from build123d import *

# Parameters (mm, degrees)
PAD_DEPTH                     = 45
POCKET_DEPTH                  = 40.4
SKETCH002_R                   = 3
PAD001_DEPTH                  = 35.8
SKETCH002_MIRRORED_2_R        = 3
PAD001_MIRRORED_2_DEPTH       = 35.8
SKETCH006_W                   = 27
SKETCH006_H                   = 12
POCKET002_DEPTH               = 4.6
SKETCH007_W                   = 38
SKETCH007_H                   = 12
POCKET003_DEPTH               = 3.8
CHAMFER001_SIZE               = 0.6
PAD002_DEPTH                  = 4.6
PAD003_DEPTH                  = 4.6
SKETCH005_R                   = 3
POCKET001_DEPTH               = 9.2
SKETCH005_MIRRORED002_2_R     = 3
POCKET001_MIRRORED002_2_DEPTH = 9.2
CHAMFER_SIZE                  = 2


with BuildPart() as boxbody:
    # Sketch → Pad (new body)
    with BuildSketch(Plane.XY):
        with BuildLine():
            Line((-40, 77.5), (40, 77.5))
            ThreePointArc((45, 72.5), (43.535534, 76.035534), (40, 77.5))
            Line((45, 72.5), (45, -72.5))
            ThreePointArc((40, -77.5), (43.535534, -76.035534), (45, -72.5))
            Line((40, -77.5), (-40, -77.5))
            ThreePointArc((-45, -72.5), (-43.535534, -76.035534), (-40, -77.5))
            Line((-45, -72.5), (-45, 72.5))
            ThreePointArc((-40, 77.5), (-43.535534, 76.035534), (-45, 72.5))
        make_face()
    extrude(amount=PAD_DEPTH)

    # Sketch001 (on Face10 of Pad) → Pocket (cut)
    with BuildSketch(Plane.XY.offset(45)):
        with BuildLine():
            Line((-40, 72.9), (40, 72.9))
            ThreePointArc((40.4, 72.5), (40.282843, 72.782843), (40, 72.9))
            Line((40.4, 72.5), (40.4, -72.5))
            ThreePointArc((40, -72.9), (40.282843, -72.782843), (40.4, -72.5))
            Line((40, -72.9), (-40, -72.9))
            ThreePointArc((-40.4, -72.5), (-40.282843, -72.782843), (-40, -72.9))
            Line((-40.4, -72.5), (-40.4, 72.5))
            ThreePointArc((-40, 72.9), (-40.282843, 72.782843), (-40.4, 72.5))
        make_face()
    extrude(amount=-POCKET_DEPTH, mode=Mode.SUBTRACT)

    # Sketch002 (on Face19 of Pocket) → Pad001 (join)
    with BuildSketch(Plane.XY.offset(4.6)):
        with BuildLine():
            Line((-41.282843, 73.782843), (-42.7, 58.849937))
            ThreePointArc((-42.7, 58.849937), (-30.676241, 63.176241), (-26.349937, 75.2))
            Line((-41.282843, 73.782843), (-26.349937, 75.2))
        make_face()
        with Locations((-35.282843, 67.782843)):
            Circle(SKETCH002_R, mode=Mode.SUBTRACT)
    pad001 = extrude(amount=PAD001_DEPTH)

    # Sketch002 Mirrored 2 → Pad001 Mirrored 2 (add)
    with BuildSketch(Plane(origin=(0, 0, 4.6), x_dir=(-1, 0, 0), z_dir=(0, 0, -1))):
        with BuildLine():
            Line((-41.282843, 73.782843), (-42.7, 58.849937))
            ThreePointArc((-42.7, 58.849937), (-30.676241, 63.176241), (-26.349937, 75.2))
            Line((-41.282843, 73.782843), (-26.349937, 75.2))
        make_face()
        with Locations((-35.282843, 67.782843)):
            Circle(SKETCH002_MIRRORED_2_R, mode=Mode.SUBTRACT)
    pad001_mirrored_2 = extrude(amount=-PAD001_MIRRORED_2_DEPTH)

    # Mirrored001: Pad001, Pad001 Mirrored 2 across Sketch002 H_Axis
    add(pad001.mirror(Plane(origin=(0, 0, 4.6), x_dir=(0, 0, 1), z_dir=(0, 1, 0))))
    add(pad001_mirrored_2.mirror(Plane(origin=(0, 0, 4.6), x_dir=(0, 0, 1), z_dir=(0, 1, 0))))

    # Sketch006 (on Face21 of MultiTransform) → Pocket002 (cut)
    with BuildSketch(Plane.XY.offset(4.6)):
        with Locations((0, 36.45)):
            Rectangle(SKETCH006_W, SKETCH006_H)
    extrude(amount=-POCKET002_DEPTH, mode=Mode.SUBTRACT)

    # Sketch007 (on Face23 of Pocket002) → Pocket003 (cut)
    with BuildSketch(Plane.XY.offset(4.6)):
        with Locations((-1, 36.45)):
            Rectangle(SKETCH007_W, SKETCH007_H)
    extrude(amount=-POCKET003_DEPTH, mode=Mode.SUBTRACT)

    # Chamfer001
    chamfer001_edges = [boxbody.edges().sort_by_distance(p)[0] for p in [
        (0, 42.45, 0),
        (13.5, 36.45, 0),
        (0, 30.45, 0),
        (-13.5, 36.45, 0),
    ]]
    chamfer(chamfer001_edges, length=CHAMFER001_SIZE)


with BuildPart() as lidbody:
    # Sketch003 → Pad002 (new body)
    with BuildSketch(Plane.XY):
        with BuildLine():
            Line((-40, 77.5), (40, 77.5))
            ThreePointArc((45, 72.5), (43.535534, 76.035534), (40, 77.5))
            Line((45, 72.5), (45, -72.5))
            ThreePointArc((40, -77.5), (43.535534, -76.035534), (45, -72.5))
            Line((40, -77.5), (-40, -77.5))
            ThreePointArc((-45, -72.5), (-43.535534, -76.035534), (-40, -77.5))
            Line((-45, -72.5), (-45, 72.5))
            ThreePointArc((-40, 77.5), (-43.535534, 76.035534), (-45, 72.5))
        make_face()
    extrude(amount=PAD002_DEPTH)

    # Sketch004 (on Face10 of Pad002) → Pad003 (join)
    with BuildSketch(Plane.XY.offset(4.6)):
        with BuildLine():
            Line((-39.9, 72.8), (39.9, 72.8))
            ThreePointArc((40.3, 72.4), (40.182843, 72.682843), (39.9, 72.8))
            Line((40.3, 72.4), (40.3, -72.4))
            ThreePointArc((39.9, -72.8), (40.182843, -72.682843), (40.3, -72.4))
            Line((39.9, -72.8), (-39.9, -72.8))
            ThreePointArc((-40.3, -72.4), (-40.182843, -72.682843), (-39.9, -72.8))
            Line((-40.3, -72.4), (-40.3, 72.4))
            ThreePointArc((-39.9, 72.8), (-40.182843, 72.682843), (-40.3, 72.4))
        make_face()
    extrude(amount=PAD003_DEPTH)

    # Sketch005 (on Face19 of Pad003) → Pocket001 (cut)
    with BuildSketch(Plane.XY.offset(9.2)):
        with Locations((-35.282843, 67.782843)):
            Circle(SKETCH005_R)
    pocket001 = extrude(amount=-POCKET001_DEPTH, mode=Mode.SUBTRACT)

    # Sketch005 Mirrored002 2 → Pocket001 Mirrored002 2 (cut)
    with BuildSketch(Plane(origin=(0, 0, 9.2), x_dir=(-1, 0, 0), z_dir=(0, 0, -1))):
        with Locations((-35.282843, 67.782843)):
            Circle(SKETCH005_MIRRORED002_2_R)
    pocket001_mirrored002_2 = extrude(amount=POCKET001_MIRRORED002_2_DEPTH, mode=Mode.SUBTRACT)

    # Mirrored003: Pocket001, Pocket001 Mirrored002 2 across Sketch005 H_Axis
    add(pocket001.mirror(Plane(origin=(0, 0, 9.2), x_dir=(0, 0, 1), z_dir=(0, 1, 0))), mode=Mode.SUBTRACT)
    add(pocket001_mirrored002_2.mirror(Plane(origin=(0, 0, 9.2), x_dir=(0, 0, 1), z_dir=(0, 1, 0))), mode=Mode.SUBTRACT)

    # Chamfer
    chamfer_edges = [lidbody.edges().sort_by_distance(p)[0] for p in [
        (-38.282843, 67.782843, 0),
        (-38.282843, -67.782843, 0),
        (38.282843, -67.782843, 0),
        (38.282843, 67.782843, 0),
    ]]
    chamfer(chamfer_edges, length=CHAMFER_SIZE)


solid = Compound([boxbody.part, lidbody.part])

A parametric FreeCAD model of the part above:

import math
import FreeCAD as App
import Part
import Sketcher


def edges_at(feature, points):
    """Names of the edges that pass closest to the given points."""
    edges = feature.Shape.Edges
    near = lambda p: min(range(len(edges)), key=lambda i: edges[i].distToShape(Part.Vertex(*p))[0])
    return sorted({f"Edge{near(p) + 1}" for p in points})


def add_polygon(sketch, points):
    """Adds a closed chain of lines whose ends are joined by coincident constraints."""
    first, n = sketch.GeometryCount, len(points)
    for a, b in zip(points, points[1:] + points[:1]):
        sketch.addGeometry(Part.LineSegment(App.Vector(*a, 0), App.Vector(*b, 0)), False)
    for i in range(n):
        sketch.addConstraint(Sketcher.Constraint("Coincident", first + i, 2, first + (i + 1) % n, 1))

doc = App.newDocument("Part")
body = doc.addObject("PartDesign::Body", "Body")

# Sketch on XY plane
sketch1 = body.newObject("Sketcher::SketchObject", "Sketch")
sketch1.AttachmentSupport = (doc.getObject("XY_Plane"), [""])
sketch1.MapMode = "FlatFace"
sketch1.addGeometry(Part.LineSegment(App.Vector(40, 77.5, 0), App.Vector(-40, 77.5, 0)), False)
sketch1.addGeometry(Part.ArcOfCircle(Part.Circle(App.Vector(-40, 72.5, 0), App.Vector(0, 0, 1), 5), math.radians(90), math.radians(180)), False)
sketch1.addGeometry(Part.LineSegment(App.Vector(-45, 72.5, 0), App.Vector(-45, -72.5, 0)), False)
sketch1.addGeometry(Part.ArcOfCircle(Part.Circle(App.Vector(-40, -72.5, 0), App.Vector(0, 0, 1), 5), math.radians(180), math.radians(270)), False)
sketch1.addGeometry(Part.LineSegment(App.Vector(-40, -77.5, 0), App.Vector(40, -77.5, 0)), False)
sketch1.addGeometry(Part.ArcOfCircle(Part.Circle(App.Vector(40, -72.5, 0), App.Vector(0, 0, 1), 5), math.radians(-90), math.radians(0)), False)
sketch1.addGeometry(Part.LineSegment(App.Vector(45, -72.5, 0), App.Vector(45, 72.5, 0)), False)
sketch1.addGeometry(Part.ArcOfCircle(Part.Circle(App.Vector(40, 72.5, 0), App.Vector(0, 0, 1), 5), math.radians(0), math.radians(90)), False)
sketch1.addConstraint(Sketcher.Constraint("Tangent", 0, 2, 1, 1))
sketch1.addConstraint(Sketcher.Constraint("Tangent", 1, 2, 2, 1))
sketch1.addConstraint(Sketcher.Constraint("Tangent", 2, 2, 3, 1))
sketch1.addConstraint(Sketcher.Constraint("Tangent", 3, 2, 4, 1))
sketch1.addConstraint(Sketcher.Constraint("Tangent", 4, 2, 5, 1))
sketch1.addConstraint(Sketcher.Constraint("Tangent", 5, 2, 6, 1))
sketch1.addConstraint(Sketcher.Constraint("Tangent", 6, 2, 7, 1))
sketch1.addConstraint(Sketcher.Constraint("Tangent", 7, 2, 0, 1))
sketch1.addConstraint(Sketcher.Constraint("Horizontal", 0))
sketch1.addConstraint(Sketcher.Constraint("Vertical", 2))
sketch1.addConstraint(Sketcher.Constraint("Horizontal", 4))
sketch1.addConstraint(Sketcher.Constraint("Vertical", 6))
sketch1.addConstraint(Sketcher.Constraint("Equal", 1, 3))
sketch1.addConstraint(Sketcher.Constraint("Equal", 3, 5))
sketch1.addConstraint(Sketcher.Constraint("Equal", 5, 7))
sketch1.addConstraint(Sketcher.Constraint("Symmetric", 1, 3, 5, 3, -1, 1))
sketch1.addConstraint(Sketcher.Constraint("Radius", 1, 5.0))
sketch1.addConstraint(Sketcher.Constraint("DistanceX", 0, 2, 0, 1, 80.0))
sketch1.addConstraint(Sketcher.Constraint("DistanceY", 2, 2, 2, 1, 145.0))
pad1 = body.newObject("PartDesign::Pad", "Pad")
pad1.Profile = sketch1
pad1.Length = 45

# Sketch on XY plane
sketch2 = body.newObject("Sketcher::SketchObject", "Sketch001")
sketch2.AttachmentSupport = (doc.getObject("XY_Plane"), [""])
sketch2.MapMode = "FlatFace"
sketch2.AttachmentOffset = App.Placement(App.Vector(0, 0, 45), App.Rotation())
sketch2.addGeometry(Part.LineSegment(App.Vector(40, 72.9, 0), App.Vector(-40, 72.9, 0)), False)
sketch2.addGeometry(Part.ArcOfCircle(Part.Circle(App.Vector(-40, 72.5, 0), App.Vector(0, 0, 1), 0.4), math.radians(90), math.radians(180)), False)
sketch2.addGeometry(Part.LineSegment(App.Vector(-40.4, 72.5, 0), App.Vector(-40.4, -72.5, 0)), False)
sketch2.addGeometry(Part.ArcOfCircle(Part.Circle(App.Vector(-40, -72.5, 0), App.Vector(0, 0, 1), 0.4), math.radians(180), math.radians(270)), False)
sketch2.addGeometry(Part.LineSegment(App.Vector(-40, -72.9, 0), App.Vector(40, -72.9, 0)), False)
sketch2.addGeometry(Part.ArcOfCircle(Part.Circle(App.Vector(40, -72.5, 0), App.Vector(0, 0, 1), 0.4), math.radians(-90), math.radians(0)), False)
sketch2.addGeometry(Part.LineSegment(App.Vector(40.4, -72.5, 0), App.Vector(40.4, 72.5, 0)), False)
sketch2.addGeometry(Part.ArcOfCircle(Part.Circle(App.Vector(40, 72.5, 0), App.Vector(0, 0, 1), 0.4), math.radians(0), math.radians(90)), False)
sketch2.addConstraint(Sketcher.Constraint("Coincident", 0, 2, 1, 1))
sketch2.addConstraint(Sketcher.Constraint("Coincident", 1, 2, 2, 1))
sketch2.addConstraint(Sketcher.Constraint("Coincident", 2, 2, 3, 1))
sketch2.addConstraint(Sketcher.Constraint("Coincident", 3, 2, 4, 1))
sketch2.addConstraint(Sketcher.Constraint("Coincident", 4, 2, 5, 1))
sketch2.addConstraint(Sketcher.Constraint("Coincident", 5, 2, 6, 1))
sketch2.addConstraint(Sketcher.Constraint("Coincident", 6, 2, 7, 1))
sketch2.addConstraint(Sketcher.Constraint("Coincident", 7, 2, 0, 1))
sketch2.addConstraint(Sketcher.Constraint("Horizontal", 0))
sketch2.addConstraint(Sketcher.Constraint("Vertical", 2))
sketch2.addConstraint(Sketcher.Constraint("Horizontal", 4))
sketch2.addConstraint(Sketcher.Constraint("Vertical", 6))
sketch2.addConstraint(Sketcher.Constraint("Equal", 1, 3))
sketch2.addConstraint(Sketcher.Constraint("Equal", 3, 5))
sketch2.addConstraint(Sketcher.Constraint("Equal", 5, 7))
sketch2.addConstraint(Sketcher.Constraint("Symmetric", 1, 3, 5, 3, -1, 1))
sketch2.addConstraint(Sketcher.Constraint("Horizontal", 7, 3, 1, 2))
sketch2.addConstraint(Sketcher.Constraint("Horizontal", 5, 3, 2, 2))
sketch2.addConstraint(Sketcher.Constraint("Horizontal", 2, 2, 5, 2))
sketch2.addConstraint(Sketcher.Constraint("Horizontal", 1, 2, 6, 2))
sketch2.addConstraint(Sketcher.Constraint("Vertical", 3, 3, 0, 2))
sketch2.addConstraint(Sketcher.Constraint("Vertical", 0, 2, 3, 2))
sketch2.addConstraint(Sketcher.Constraint("Vertical", 7, 3, 4, 2))
sketch2.addConstraint(Sketcher.Constraint("Vertical", 4, 2, 7, 2))
sketch2.addConstraint(Sketcher.Constraint("Radius", 1, 0.399999))
sketch2.addConstraint(Sketcher.Constraint("DistanceX", 0, 2, 0, 1, 80.0))
sketch2.addConstraint(Sketcher.Constraint("DistanceY", 2, 2, 2, 1, 145.0))
pocket1 = body.newObject("PartDesign::Pocket", "Pocket")
pocket1.Profile = sketch2
pocket1.Length = 40.4

# Sketch on XY plane
sketch3 = body.newObject("Sketcher::SketchObject", "Sketch002")
sketch3.AttachmentSupport = (doc.getObject("XY_Plane"), [""])
sketch3.MapMode = "FlatFace"
sketch3.AttachmentOffset = App.Placement(App.Vector(0, 0, 4.6), App.Rotation())
sketch3.addGeometry(Part.LineSegment(App.Vector(-41.3, 73.8, 0), App.Vector(-42.7, 58.8, 0)), False)
sketch3.addGeometry(Part.ArcOfCircle(Part.Circle(App.Vector(-41.3, 73.8, 0), App.Vector(0, 0, 1), 15), math.radians(-95), math.radians(5)), False)
sketch3.addGeometry(Part.LineSegment(App.Vector(-26.3, 75.2, 0), App.Vector(-41.3, 73.8, 0)), False)
sketch3.addGeometry(Part.Circle(App.Vector(-35.3, 67.8, 0), App.Vector(0, 0, 1), 3), False)
sketch3.addConstraint(Sketcher.Constraint("Coincident", 0, 2, 1, 1))
sketch3.addConstraint(Sketcher.Constraint("Coincident", 1, 2, 2, 1))
sketch3.addConstraint(Sketcher.Constraint("Coincident", 2, 2, 0, 1))
sketch3.addConstraint(Sketcher.Constraint("Coincident", 2, 2, 1, 3))
sketch3.addConstraint(Sketcher.Constraint("Diameter", 3, 6.0))
sketch3.addConstraint(Sketcher.Constraint("Radius", 1, 15.000001))
sketch3.addConstraint(Sketcher.Constraint("DistanceX", 1, 3, 3, 3, 6.0))
sketch3.addConstraint(Sketcher.Constraint("DistanceY", 3, 3, 1, 3, 6.0))
sketch3.addConstraint(Sketcher.Constraint("DistanceX", 0, 2, -1, 1, 42.7))
sketch3.addConstraint(Sketcher.Constraint("DistanceY", -1, 1, 1, 2, 75.2))
sketch3.addConstraint(Sketcher.Constraint("DistanceX", 1, 3, -1, 1, 41.282843))
sketch3.addConstraint(Sketcher.Constraint("DistanceY", -1, 1, 1, 3, 73.782843))
pad2 = body.newObject("PartDesign::Pad", "Pad001")
pad2.Profile = sketch3
pad2.Length = 35.8

# Sketch on XY plane
sketch4 = body.newObject("Sketcher::SketchObject", "Sketch003")
sketch4.AttachmentSupport = (doc.getObject("XY_Plane"), [""])
sketch4.MapMode = "FlatFace"
sketch4.AttachmentOffset = App.Placement(App.Vector(0, 0, 4.6), App.Rotation())
sketch4.addGeometry(Part.LineSegment(App.Vector(41.3, 73.8, 0), App.Vector(42.7, 58.8, 0)), False)
sketch4.addGeometry(Part.ArcOfCircle(Part.Circle(App.Vector(41.3, 73.8, 0), App.Vector(0, 0, 1), 15), math.radians(175), math.radians(275)), False)
sketch4.addGeometry(Part.LineSegment(App.Vector(26.3, 75.2, 0), App.Vector(41.3, 73.8, 0)), False)
sketch4.addGeometry(Part.Circle(App.Vector(35.3, 67.8, 0), App.Vector(0, 0, 1), 3), False)
sketch4.addConstraint(Sketcher.Constraint("Coincident", 0, 2, 1, 2))
sketch4.addConstraint(Sketcher.Constraint("Coincident", 1, 1, 2, 1))
sketch4.addConstraint(Sketcher.Constraint("Coincident", 2, 2, 0, 1))
sketch4.addConstraint(Sketcher.Constraint("Coincident", 2, 2, 1, 3))
sketch4.addConstraint(Sketcher.Constraint("Diameter", 3, 6.0))
sketch4.addConstraint(Sketcher.Constraint("Radius", 1, 15.000001))
sketch4.addConstraint(Sketcher.Constraint("DistanceX", 3, 3, 1, 3, 6.0))
sketch4.addConstraint(Sketcher.Constraint("DistanceY", 3, 3, 1, 3, 6.0))
sketch4.addConstraint(Sketcher.Constraint("DistanceX", -1, 1, 0, 2, 42.7))
sketch4.addConstraint(Sketcher.Constraint("DistanceY", -1, 1, 1, 1, 75.2))
sketch4.addConstraint(Sketcher.Constraint("DistanceX", -1, 1, 1, 3, 41.282843))
sketch4.addConstraint(Sketcher.Constraint("DistanceY", -1, 1, 1, 3, 73.782843))
pad3 = body.newObject("PartDesign::Pad", "Pad002")
pad3.Profile = sketch4
pad3.Length = 35.8
doc.recompute()

mirrored = body.newObject("PartDesign::Mirrored", "Mirrored")
mirrored.Originals = [pad2, pad3]
mirrored.MirrorPlane = (doc.getObject("XZ_Plane"), [""])
body.Tip = mirrored

# Sketch on XY plane
sketch5 = body.newObject("Sketcher::SketchObject", "Sketch004")
sketch5.AttachmentSupport = (doc.getObject("XY_Plane"), [""])
sketch5.MapMode = "FlatFace"
sketch5.AttachmentOffset = App.Placement(App.Vector(0, 0, 4.6), App.Rotation())
add_polygon(sketch5, [(-14, 42), (-14, 30), (14, 30), (14, 42)])  # lines 0-3
sketch5.addConstraint(Sketcher.Constraint("Vertical", 0))
sketch5.addConstraint(Sketcher.Constraint("Horizontal", 1))
sketch5.addConstraint(Sketcher.Constraint("Vertical", 2))
sketch5.addConstraint(Sketcher.Constraint("Horizontal", 3))
sketch5.addConstraint(Sketcher.Constraint("DistanceX", 1, 1, 1, 2, 27.0))
sketch5.addConstraint(Sketcher.Constraint("DistanceY", 0, 2, 0, 1, 12.0))
sketch5.addConstraint(Sketcher.Constraint("DistanceX", 0, 2, -1, 1, 13.5))
sketch5.addConstraint(Sketcher.Constraint("DistanceY", -1, 1, 0, 2, 30.45))
pocket2 = body.newObject("PartDesign::Pocket", "Pocket001")
pocket2.Profile = sketch5
pocket2.Length = 4.6

# Sketch on XY plane
sketch6 = body.newObject("Sketcher::SketchObject", "Sketch005")
sketch6.AttachmentSupport = (doc.getObject("XY_Plane"), [""])
sketch6.MapMode = "FlatFace"
sketch6.AttachmentOffset = App.Placement(App.Vector(0, 0, 4.6), App.Rotation())
add_polygon(sketch6, [(-20, 42), (-20, 30), (18, 30), (18, 42)])  # lines 0-3
sketch6.addConstraint(Sketcher.Constraint("Vertical", 0))
sketch6.addConstraint(Sketcher.Constraint("Horizontal", 1))
sketch6.addConstraint(Sketcher.Constraint("Vertical", 2))
sketch6.addConstraint(Sketcher.Constraint("Horizontal", 3))
sketch6.addConstraint(Sketcher.Constraint("DistanceX", 1, 1, 1, 2, 38.0))
sketch6.addConstraint(Sketcher.Constraint("DistanceY", 0, 2, 0, 1, 12.0))
sketch6.addConstraint(Sketcher.Constraint("DistanceX", 0, 2, -1, 1, 20.0))
sketch6.addConstraint(Sketcher.Constraint("DistanceY", -1, 1, 0, 2, 30.45))
pocket3 = body.newObject("PartDesign::Pocket", "Pocket002")
pocket3.Profile = sketch6
pocket3.Length = 3.8
doc.recompute()

chamfer = body.newObject("PartDesign::Chamfer", "Chamfer")
chamfer.Base = (pocket3, edges_at(pocket3, [
    (0, 42.45, 0),
    (13.5, 36.45, 0),
    (0, 30.45, 0),
    (-13.5, 36.45, 0),
]))
chamfer.Size = 0.6
body2 = doc.addObject("PartDesign::Body", "Body001")

# Sketch on XY plane
sketch7 = body2.newObject("Sketcher::SketchObject", "Sketch006")
sketch7.AttachmentSupport = (doc.getObject("XY_Plane001"), [""])
sketch7.MapMode = "FlatFace"
sketch7.addGeometry(Part.LineSegment(App.Vector(40, 77.5, 0), App.Vector(-40, 77.5, 0)), False)
sketch7.addGeometry(Part.ArcOfCircle(Part.Circle(App.Vector(-40, 72.5, 0), App.Vector(0, 0, 1), 5), math.radians(90), math.radians(180)), False)
sketch7.addGeometry(Part.LineSegment(App.Vector(-45, 72.5, 0), App.Vector(-45, -72.5, 0)), False)
sketch7.addGeometry(Part.ArcOfCircle(Part.Circle(App.Vector(-40, -72.5, 0), App.Vector(0, 0, 1), 5), math.radians(180), math.radians(270)), False)
sketch7.addGeometry(Part.LineSegment(App.Vector(-40, -77.5, 0), App.Vector(40, -77.5, 0)), False)
sketch7.addGeometry(Part.ArcOfCircle(Part.Circle(App.Vector(40, -72.5, 0), App.Vector(0, 0, 1), 5), math.radians(-90), math.radians(0)), False)
sketch7.addGeometry(Part.LineSegment(App.Vector(45, -72.5, 0), App.Vector(45, 72.5, 0)), False)
sketch7.addGeometry(Part.ArcOfCircle(Part.Circle(App.Vector(40, 72.5, 0), App.Vector(0, 0, 1), 5), math.radians(0), math.radians(90)), False)
sketch7.addConstraint(Sketcher.Constraint("Tangent", 0, 2, 1, 1))
sketch7.addConstraint(Sketcher.Constraint("Tangent", 1, 2, 2, 1))
sketch7.addConstraint(Sketcher.Constraint("Tangent", 2, 2, 3, 1))
sketch7.addConstraint(Sketcher.Constraint("Tangent", 3, 2, 4, 1))
sketch7.addConstraint(Sketcher.Constraint("Tangent", 4, 2, 5, 1))
sketch7.addConstraint(Sketcher.Constraint("Tangent", 5, 2, 6, 1))
sketch7.addConstraint(Sketcher.Constraint("Tangent", 6, 2, 7, 1))
sketch7.addConstraint(Sketcher.Constraint("Tangent", 7, 2, 0, 1))
sketch7.addConstraint(Sketcher.Constraint("Horizontal", 0))
sketch7.addConstraint(Sketcher.Constraint("Vertical", 2))
sketch7.addConstraint(Sketcher.Constraint("Horizontal", 4))
sketch7.addConstraint(Sketcher.Constraint("Vertical", 6))
sketch7.addConstraint(Sketcher.Constraint("Equal", 1, 3))
sketch7.addConstraint(Sketcher.Constraint("Equal", 3, 5))
sketch7.addConstraint(Sketcher.Constraint("Equal", 5, 7))
sketch7.addConstraint(Sketcher.Constraint("Symmetric", 1, 3, 5, 3, -1, 1))
sketch7.addConstraint(Sketcher.Constraint("Radius", 1, 5.0))
sketch7.addConstraint(Sketcher.Constraint("DistanceX", 0, 2, 0, 1, 80.0))
sketch7.addConstraint(Sketcher.Constraint("DistanceY", 2, 2, 2, 1, 145.0))
pad4 = body2.newObject("PartDesign::Pad", "Pad003")
pad4.Profile = sketch7
pad4.Length = 4.6

# Sketch on XY plane
sketch8 = body2.newObject("Sketcher::SketchObject", "Sketch007")
sketch8.AttachmentSupport = (doc.getObject("XY_Plane001"), [""])
sketch8.MapMode = "FlatFace"
sketch8.AttachmentOffset = App.Placement(App.Vector(0, 0, 4.6), App.Rotation())
sketch8.addGeometry(Part.LineSegment(App.Vector(39.9, 72.8, 0), App.Vector(-39.9, 72.8, 0)), False)
sketch8.addGeometry(Part.ArcOfCircle(Part.Circle(App.Vector(-39.9, 72.4, 0), App.Vector(0, 0, 1), 0.4), math.radians(90), math.radians(180)), False)
sketch8.addGeometry(Part.LineSegment(App.Vector(-40.3, 72.4, 0), App.Vector(-40.3, -72.4, 0)), False)
sketch8.addGeometry(Part.ArcOfCircle(Part.Circle(App.Vector(-39.9, -72.4, 0), App.Vector(0, 0, 1), 0.4), math.radians(180), math.radians(270)), False)
sketch8.addGeometry(Part.LineSegment(App.Vector(-39.9, -72.8, 0), App.Vector(39.9, -72.8, 0)), False)
sketch8.addGeometry(Part.ArcOfCircle(Part.Circle(App.Vector(39.9, -72.4, 0), App.Vector(0, 0, 1), 0.4), math.radians(-90), math.radians(0)), False)
sketch8.addGeometry(Part.LineSegment(App.Vector(40.3, -72.4, 0), App.Vector(40.3, 72.4, 0)), False)
sketch8.addGeometry(Part.ArcOfCircle(Part.Circle(App.Vector(39.9, 72.4, 0), App.Vector(0, 0, 1), 0.4), math.radians(0), math.radians(90)), False)
sketch8.addConstraint(Sketcher.Constraint("Coincident", 0, 2, 1, 1))
sketch8.addConstraint(Sketcher.Constraint("Coincident", 1, 2, 2, 1))
sketch8.addConstraint(Sketcher.Constraint("Coincident", 2, 2, 3, 1))
sketch8.addConstraint(Sketcher.Constraint("Coincident", 3, 2, 4, 1))
sketch8.addConstraint(Sketcher.Constraint("Coincident", 4, 2, 5, 1))
sketch8.addConstraint(Sketcher.Constraint("Coincident", 5, 2, 6, 1))
sketch8.addConstraint(Sketcher.Constraint("Coincident", 6, 2, 7, 1))
sketch8.addConstraint(Sketcher.Constraint("Coincident", 7, 2, 0, 1))
sketch8.addConstraint(Sketcher.Constraint("Horizontal", 0))
sketch8.addConstraint(Sketcher.Constraint("Vertical", 2))
sketch8.addConstraint(Sketcher.Constraint("Horizontal", 4))
sketch8.addConstraint(Sketcher.Constraint("Vertical", 6))
sketch8.addConstraint(Sketcher.Constraint("Equal", 1, 3))
sketch8.addConstraint(Sketcher.Constraint("Equal", 3, 5))
sketch8.addConstraint(Sketcher.Constraint("Equal", 5, 7))
sketch8.addConstraint(Sketcher.Constraint("Symmetric", 1, 3, 5, 3, -1, 1))
sketch8.addConstraint(Sketcher.Constraint("Horizontal", 7, 3, 1, 2))
sketch8.addConstraint(Sketcher.Constraint("Horizontal", 5, 3, 2, 2))
sketch8.addConstraint(Sketcher.Constraint("Horizontal", 2, 2, 5, 2))
sketch8.addConstraint(Sketcher.Constraint("Horizontal", 1, 2, 6, 2))
sketch8.addConstraint(Sketcher.Constraint("Vertical", 3, 3, 0, 2))
sketch8.addConstraint(Sketcher.Constraint("Vertical", 0, 2, 3, 2))
sketch8.addConstraint(Sketcher.Constraint("Vertical", 7, 3, 4, 2))
sketch8.addConstraint(Sketcher.Constraint("Vertical", 4, 2, 7, 2))
sketch8.addConstraint(Sketcher.Constraint("Radius", 1, 0.399999))
sketch8.addConstraint(Sketcher.Constraint("DistanceX", 0, 2, 0, 1, 79.8))
sketch8.addConstraint(Sketcher.Constraint("DistanceY", 2, 2, 2, 1, 144.8))
pad5 = body2.newObject("PartDesign::Pad", "Pad004")
pad5.Profile = sketch8
pad5.Length = 4.6

# Sketch on XY plane
sketch9 = body2.newObject("Sketcher::SketchObject", "Sketch008")
sketch9.AttachmentSupport = (doc.getObject("XY_Plane001"), [""])
sketch9.MapMode = "FlatFace"
sketch9.AttachmentOffset = App.Placement(App.Vector(0, 0, 9.2), App.Rotation())
sketch9.addGeometry(Part.Circle(App.Vector(-35.3, 67.8, 0), App.Vector(0, 0, 1), 3), False)
sketch9.addConstraint(Sketcher.Constraint("Diameter", 0, 6.0))
sketch9.addConstraint(Sketcher.Constraint("DistanceX", 0, 3, -1, 1, 35.282843))
sketch9.addConstraint(Sketcher.Constraint("DistanceY", -1, 1, 0, 3, 67.782843))
pocket4 = body2.newObject("PartDesign::Pocket", "Pocket003")
pocket4.Profile = sketch9
pocket4.Length = 9.2

# Sketch on XY plane
sketch10 = body2.newObject("Sketcher::SketchObject", "Sketch009")
sketch10.AttachmentSupport = (doc.getObject("XY_Plane001"), [""])
sketch10.MapMode = "FlatFace"
sketch10.AttachmentOffset = App.Placement(App.Vector(0, 0, 9.2), App.Rotation())
sketch10.addGeometry(Part.Circle(App.Vector(35.3, 67.8, 0), App.Vector(0, 0, 1), 3), False)
sketch10.addConstraint(Sketcher.Constraint("Diameter", 0, 6.0))
sketch10.addConstraint(Sketcher.Constraint("DistanceX", -1, 1, 0, 3, 35.282843))
sketch10.addConstraint(Sketcher.Constraint("DistanceY", -1, 1, 0, 3, 67.782843))
pocket5 = body2.newObject("PartDesign::Pocket", "Pocket004")
pocket5.Profile = sketch10
pocket5.Length = 9.2
doc.recompute()

mirrored2 = body2.newObject("PartDesign::Mirrored", "Mirrored001")
mirrored2.Originals = [pocket4, pocket5]
mirrored2.MirrorPlane = (doc.getObject("XZ_Plane001"), [""])
body2.Tip = mirrored2
doc.recompute()

chamfer2 = body2.newObject("PartDesign::Chamfer", "Chamfer001")
chamfer2.Base = (mirrored2, edges_at(mirrored2, [
    (-38.283, 67.783, 0),
    (-38.283, -67.783, 0),
    (38.283, -67.783, 0),
    (38.283, 67.783, 0),
]))
chamfer2.Size = 2

doc.recompute()
